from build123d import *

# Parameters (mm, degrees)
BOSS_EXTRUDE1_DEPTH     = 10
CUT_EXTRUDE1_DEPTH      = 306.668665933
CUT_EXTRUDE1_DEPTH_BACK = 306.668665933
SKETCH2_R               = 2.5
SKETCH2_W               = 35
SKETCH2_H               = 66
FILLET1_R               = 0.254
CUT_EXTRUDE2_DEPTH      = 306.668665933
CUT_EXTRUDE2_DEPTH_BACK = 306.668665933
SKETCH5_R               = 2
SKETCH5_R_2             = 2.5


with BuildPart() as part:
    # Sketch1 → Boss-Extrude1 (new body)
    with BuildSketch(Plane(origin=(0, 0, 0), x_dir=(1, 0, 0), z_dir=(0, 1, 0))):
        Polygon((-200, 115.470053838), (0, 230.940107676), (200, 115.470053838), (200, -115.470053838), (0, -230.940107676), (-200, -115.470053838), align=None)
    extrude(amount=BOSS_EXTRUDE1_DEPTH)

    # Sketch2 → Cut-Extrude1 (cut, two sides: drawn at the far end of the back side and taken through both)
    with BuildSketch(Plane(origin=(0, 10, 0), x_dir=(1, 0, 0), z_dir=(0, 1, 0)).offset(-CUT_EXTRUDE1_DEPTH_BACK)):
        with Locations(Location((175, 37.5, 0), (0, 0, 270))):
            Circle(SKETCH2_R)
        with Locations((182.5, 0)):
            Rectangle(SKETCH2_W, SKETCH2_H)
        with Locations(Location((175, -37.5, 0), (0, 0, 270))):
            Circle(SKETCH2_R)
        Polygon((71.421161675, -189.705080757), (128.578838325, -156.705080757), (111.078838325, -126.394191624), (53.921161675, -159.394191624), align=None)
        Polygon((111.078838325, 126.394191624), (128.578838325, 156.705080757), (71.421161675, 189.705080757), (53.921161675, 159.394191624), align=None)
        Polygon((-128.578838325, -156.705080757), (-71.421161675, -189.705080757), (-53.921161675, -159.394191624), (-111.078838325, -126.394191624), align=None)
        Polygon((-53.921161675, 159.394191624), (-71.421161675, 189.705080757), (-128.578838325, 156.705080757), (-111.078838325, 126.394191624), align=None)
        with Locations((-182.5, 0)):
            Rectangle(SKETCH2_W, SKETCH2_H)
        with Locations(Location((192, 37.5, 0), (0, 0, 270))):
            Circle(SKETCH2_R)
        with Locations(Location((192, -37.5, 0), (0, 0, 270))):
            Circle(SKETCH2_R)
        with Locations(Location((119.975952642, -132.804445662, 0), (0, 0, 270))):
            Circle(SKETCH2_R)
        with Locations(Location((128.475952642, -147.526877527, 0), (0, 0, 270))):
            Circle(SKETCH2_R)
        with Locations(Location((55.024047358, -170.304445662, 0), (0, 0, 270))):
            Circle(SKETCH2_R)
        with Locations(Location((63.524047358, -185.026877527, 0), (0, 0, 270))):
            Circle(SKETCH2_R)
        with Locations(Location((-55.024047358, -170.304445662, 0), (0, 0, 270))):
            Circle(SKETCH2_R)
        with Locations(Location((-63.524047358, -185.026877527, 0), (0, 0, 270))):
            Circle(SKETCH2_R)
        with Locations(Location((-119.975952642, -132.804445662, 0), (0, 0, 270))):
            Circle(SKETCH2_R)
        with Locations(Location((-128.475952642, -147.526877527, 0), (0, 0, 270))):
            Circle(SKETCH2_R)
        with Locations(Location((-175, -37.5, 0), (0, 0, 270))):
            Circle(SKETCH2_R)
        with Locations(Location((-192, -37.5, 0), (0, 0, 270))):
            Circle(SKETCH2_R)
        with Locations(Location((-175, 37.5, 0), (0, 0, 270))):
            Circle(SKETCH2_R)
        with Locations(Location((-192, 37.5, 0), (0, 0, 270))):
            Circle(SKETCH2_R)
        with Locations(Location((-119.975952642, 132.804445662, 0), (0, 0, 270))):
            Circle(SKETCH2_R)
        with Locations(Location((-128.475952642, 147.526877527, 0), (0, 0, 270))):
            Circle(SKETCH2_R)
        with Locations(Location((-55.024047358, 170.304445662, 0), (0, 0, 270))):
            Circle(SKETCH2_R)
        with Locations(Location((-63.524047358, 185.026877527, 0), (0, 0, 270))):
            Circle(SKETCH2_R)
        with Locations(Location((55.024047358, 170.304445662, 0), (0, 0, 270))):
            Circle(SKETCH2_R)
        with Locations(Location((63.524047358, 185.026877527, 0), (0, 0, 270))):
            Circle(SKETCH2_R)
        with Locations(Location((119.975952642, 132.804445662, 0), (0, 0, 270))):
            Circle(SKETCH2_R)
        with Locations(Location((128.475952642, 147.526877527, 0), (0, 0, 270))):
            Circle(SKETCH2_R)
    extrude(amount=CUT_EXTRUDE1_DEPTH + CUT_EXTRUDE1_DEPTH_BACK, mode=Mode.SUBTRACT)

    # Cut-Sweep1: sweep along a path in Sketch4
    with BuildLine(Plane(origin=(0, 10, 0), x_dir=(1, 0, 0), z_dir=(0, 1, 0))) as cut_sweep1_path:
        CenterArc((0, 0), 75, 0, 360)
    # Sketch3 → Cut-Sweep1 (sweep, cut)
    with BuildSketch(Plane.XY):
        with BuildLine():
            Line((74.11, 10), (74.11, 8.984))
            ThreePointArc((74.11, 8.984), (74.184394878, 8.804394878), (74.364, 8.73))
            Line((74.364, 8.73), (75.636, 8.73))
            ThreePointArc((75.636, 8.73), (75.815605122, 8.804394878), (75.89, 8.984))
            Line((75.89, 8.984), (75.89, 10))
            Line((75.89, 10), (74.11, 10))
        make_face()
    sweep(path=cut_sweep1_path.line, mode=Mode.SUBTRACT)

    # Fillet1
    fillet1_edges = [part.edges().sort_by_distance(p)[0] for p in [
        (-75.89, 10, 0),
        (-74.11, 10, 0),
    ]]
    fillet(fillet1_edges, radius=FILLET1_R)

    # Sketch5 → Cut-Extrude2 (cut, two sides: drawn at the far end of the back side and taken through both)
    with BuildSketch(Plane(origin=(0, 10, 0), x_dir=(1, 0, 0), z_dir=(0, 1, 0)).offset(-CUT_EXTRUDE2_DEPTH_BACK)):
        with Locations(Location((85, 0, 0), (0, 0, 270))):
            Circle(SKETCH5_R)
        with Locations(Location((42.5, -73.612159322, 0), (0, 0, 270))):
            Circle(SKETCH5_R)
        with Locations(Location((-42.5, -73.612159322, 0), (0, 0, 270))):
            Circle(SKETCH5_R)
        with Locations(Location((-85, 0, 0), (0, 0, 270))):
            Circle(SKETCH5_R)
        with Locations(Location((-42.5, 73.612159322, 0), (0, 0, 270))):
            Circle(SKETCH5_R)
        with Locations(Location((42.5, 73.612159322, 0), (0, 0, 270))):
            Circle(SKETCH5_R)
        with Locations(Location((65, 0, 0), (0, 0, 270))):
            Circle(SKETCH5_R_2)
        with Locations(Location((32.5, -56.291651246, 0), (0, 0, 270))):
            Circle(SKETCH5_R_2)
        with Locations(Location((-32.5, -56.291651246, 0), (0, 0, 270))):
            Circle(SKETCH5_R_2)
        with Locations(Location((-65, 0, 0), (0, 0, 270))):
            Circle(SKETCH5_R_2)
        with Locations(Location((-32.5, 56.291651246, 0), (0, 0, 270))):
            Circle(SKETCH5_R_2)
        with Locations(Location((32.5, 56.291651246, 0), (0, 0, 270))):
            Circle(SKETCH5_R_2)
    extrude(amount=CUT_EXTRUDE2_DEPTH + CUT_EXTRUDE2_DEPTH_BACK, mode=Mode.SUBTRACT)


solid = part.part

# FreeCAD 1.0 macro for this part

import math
import FreeCAD as App
import Part
import Sketcher
from FreeCAD import Vector
Q = App.Units.Quantity


def edges_at(feature, points):
    """Names of the edges that pass closest to the given points."""
    edges = feature.Shape.Edges
    near = lambda p: min(range(len(edges)), key=lambda i: edges[i].distToShape(Part.Vertex(*p))[0])
    return sorted({f"Edge{near(p) + 1}" for p in points})


def add_polygon(sketch, points):
    """Adds a closed chain of lines whose ends are joined by coincident constraints."""
    first, n = sketch.GeometryCount, len(points)
    for a, b in zip(points, points[1:] + points[:1]):
        sketch.addGeometry(Part.LineSegment(App.Vector(*a, 0), App.Vector(*b, 0)), False)
    for i in range(n):
        sketch.addConstraint(Sketcher.Constraint("Coincident", first + i, 2, first + (i + 1) % n, 1))

doc = App.newDocument("Part")
params = doc.addObject("Spreadsheet::Sheet", "Params")
for row, (alias, value) in enumerate([
    ("pad1_length", "10 mm"),
    ("sketch2_diameter", "5 mm"),
    ("sketch2_width", "35 mm"),
    ("sketch2_height", "66 mm"),
    ("sketch2_length", "66 mm"),
    ("sketch2_length2", "35 mm"),
    ("sketch3_width", "1.78 mm"),
    ("sketch4_diameter", "150 mm"),
    ("fillet_radius", "0.254 mm"),
    ("sketch5_diameter", "4 mm"),
    ("sketch5_diameter2", "5 mm"),
], start=1):
    params.set(f"A{row}", alias)
    params.set(f"B{row}", "=" + value)
    params.setAlias(f"B{row}", alias)

body = doc.addObject("PartDesign::Body", "Body")

sketch1 = body.newObject("Sketcher::SketchObject", "Sketch")
sketch1.AttachmentSupport = (doc.getObject("XZ_Plane"), [""])
sketch1.MapMode = "FlatFace"
add_polygon(sketch1, [(0, -231), (-200, -115), (-200, 115), (0, 231), (200, 115), (200, -115)])
sketch1.addConstraint([
    Sketcher.Constraint("Vertical", 1),
    Sketcher.Constraint("Vertical", 4),
    Sketcher.Constraint("Symmetric", 0, 2, 3, 2, -1, 1),
    Sketcher.Constraint("Symmetric", 2, 2, 5, 2, -1, 1),
    Sketcher.Constraint("PointOnObject", 2, 2, -2),
    Sketcher.Constraint("Parallel", 2, 5),
    Sketcher.Constraint("Horizontal", 1, 2, 3, 2),
    Sketcher.Constraint("Angle", 0, Q("150 deg")),
    Sketcher.Constraint("DistanceX", 0, 2, -1, 1, Q("200 mm")),
    Sketcher.Constraint("DistanceY", 1, 1, 1, 2, Q("230.940108 mm")),
])
pad1 = body.newObject("PartDesign::Pad", "Pad")
pad1.Profile = sketch1
pad1.setExpression("Length", "Params.pad1_length")
pad1.Reversed = True

sketch2 = body.newObject("Sketcher::SketchObject", "Sketch001")
sketch2.AttachmentSupport = (doc.getObject("XZ_Plane"), [""])
sketch2.MapMode = "FlatFace"
sketch2.AttachmentOffset = App.Placement(Vector(0, 0, -10), App.Rotation())
sketch2.addGeometry(Part.Circle(Vector(175, -37.5, 0), Vector(0, 0, 1), 2.5), False)
add_polygon(sketch2, [(165, -33), (165, 33), (200, 33), (200, -33)])
sketch2.addGeometry(Part.Circle(Vector(175, 37.5, 0), Vector(0, 0, 1), 2.5), False)
add_polygon(sketch2, [(71.4, 189.7), (128.6, 156.7), (111.1, 126.4), (53.9, 159.4)])
add_polygon(sketch2, [(111.1, -126.4), (128.6, -156.7), (71.4, -189.7), (53.9, -159.4)])
add_polygon(sketch2, [(-128.6, 156.7), (-71.4, 189.7), (-53.9, 159.4), (-111.1, 126.4)])
add_polygon(sketch2, [(-53.9, -159.4), (-71.4, -189.7), (-128.6, -156.7), (-111.1, -126.4)])
add_polygon(sketch2, [(-200, -33), (-200, 33), (-165, 33), (-165, -33)])
sketch2.addGeometry(Part.Circle(Vector(192, -37.5, 0), Vector(0, 0, 1), 2.5), False)
sketch2.addGeometry(Part.Circle(Vector(192, 37.5, 0), Vector(0, 0, 1), 2.5), False)
sketch2.addGeometry(Part.Circle(Vector(120, 132.8, 0), Vector(0, 0, 1), 2.5), False)
sketch2.addGeometry(Part.Circle(Vector(128.5, 147.5, 0), Vector(0, 0, 1), 2.5), False)
sketch2.addGeometry(Part.Circle(Vector(55, 170.3, 0), Vector(0, 0, 1), 2.5), False)
sketch2.addGeometry(Part.Circle(Vector(63.5, 185, 0), Vector(0, 0, 1), 2.5), False)
sketch2.addGeometry(Part.Circle(Vector(-55, 170.3, 0), Vector(0, 0, 1), 2.5), False)
sketch2.addGeometry(Part.Circle(Vector(-63.5, 185, 0), Vector(0, 0, 1), 2.5), False)
sketch2.addGeometry(Part.Circle(Vector(-120, 132.8, 0), Vector(0, 0, 1), 2.5), False)
sketch2.addGeometry(Part.Circle(Vector(-128.5, 147.5, 0), Vector(0, 0, 1), 2.5), False)
sketch2.addGeometry(Part.Circle(Vector(-175, 37.5, 0), Vector(0, 0, 1), 2.5), False)
sketch2.addGeometry(Part.Circle(Vector(-192, 37.5, 0), Vector(0, 0, 1), 2.5), False)
sketch2.addGeometry(Part.Circle(Vector(-175, -37.5, 0), Vector(0, 0, 1), 2.5), False)
sketch2.addGeometry(Part.Circle(Vector(-192, -37.5, 0), Vector(0, 0, 1), 2.5), False)
sketch2.addGeometry(Part.Circle(Vector(-120, -132.8, 0), Vector(0, 0, 1), 2.5), False)
sketch2.addGeometry(Part.Circle(Vector(-128.5, -147.5, 0), Vector(0, 0, 1), 2.5), False)
sketch2.addGeometry(Part.Circle(Vector(-55, -170.3, 0), Vector(0, 0, 1), 2.5), False)
sketch2.addGeometry(Part.Circle(Vector(-63.5, -185, 0), Vector(0, 0, 1), 2.5), False)
sketch2.addGeometry(Part.Circle(Vector(55, -170.3, 0), Vector(0, 0, 1), 2.5), False)
sketch2.addGeometry(Part.Circle(Vector(63.5, -185, 0), Vector(0, 0, 1), 2.5), False)
sketch2.addGeometry(Part.Circle(Vector(120, -132.8, 0), Vector(0, 0, 1), 2.5), False)
sketch2.addGeometry(Part.Circle(Vector(128.5, -147.5, 0), Vector(0, 0, 1), 2.5), False)
sketch2.addConstraint([
    Sketcher.Constraint("Vertical", 1),
    Sketcher.Constraint("Horizontal", 2),
    Sketcher.Constraint("Vertical", 3),
    Sketcher.Constraint("Horizontal", 4),
    Sketcher.Constraint("Vertical", 22),
    Sketcher.Constraint("Horizontal", 23),
    Sketcher.Constraint("Vertical", 24),
    Sketcher.Constraint("Horizontal", 25),
    Sketcher.Constraint("Equal", 0, 5),
    Sketcher.Constraint("Equal", 5, 26),
    Sketcher.Constraint("Equal", 26, 27),
    Sketcher.Constraint("Equal", 27, 28),
    Sketcher.Constraint("Equal", 28, 29),
    Sketcher.Constraint("Equal", 29, 30),
    Sketcher.Constraint("Equal", 30, 31),
    Sketcher.Constraint("Equal", 31, 32),
    Sketcher.Constraint("Equal", 32, 33),
    Sketcher.Constraint("Equal", 33, 34),
    Sketcher.Constraint("Equal", 34, 35),
    Sketcher.Constraint("Equal", 35, 36),
    Sketcher.Constraint("Equal", 36, 37),
    Sketcher.Constraint("Equal", 37, 38),
    Sketcher.Constraint("Equal", 38, 39),
    Sketcher.Constraint("Equal", 39, 40),
    Sketcher.Constraint("Equal", 40, 41),
    Sketcher.Constraint("Equal", 41, 42),
    Sketcher.Constraint("Equal", 42, 43),
    Sketcher.Constraint("Equal", 43, 44),
    Sketcher.Constraint("Equal", 44, 45),
    Sketcher.Constraint("Equal", 45, 46),
    Sketcher.Constraint("Equal", 46, 47),
    Sketcher.Constraint("Symmetric", 0, 3, 36, 3, -1, 1),
    Sketcher.Constraint("Symmetric", 26, 3, 37, 3, -1, 1),
    Sketcher.Constraint("Symmetric", 5, 3, 38, 3, -1, 1),
    Sketcher.Constraint("Symmetric", 27, 3, 39, 3, -1, 1),
    Sketcher.Constraint("Symmetric", 28, 3, 40, 3, -1, 1),
    Sketcher.Constraint("Symmetric", 29, 3, 41, 3, -1, 1),
    Sketcher.Constraint("Symmetric", 30, 3, 42, 3, -1, 1),
    Sketcher.Constraint("Symmetric", 31, 3, 43, 3, -1, 1),
    Sketcher.Constraint("Symmetric", 32, 3, 44, 3, -1, 1),
    Sketcher.Constraint("Symmetric", 33, 3, 45, 3, -1, 1),
    Sketcher.Constraint("Symmetric", 34, 3, 46, 3, -1, 1),
    Sketcher.Constraint("Symmetric", 35, 3, 47, 3, -1, 1),
    Sketcher.Constraint("Symmetric", 11, 2, 14, 2, -1, 1),
    Sketcher.Constraint("Symmetric", 12, 2, 15, 2, -1, 1),
    Sketcher.Constraint("Symmetric", 13, 2, 16, 2, -1, 1),
    Sketcher.Constraint("Symmetric", 10, 2, 17, 2, -1, 1),
    Sketcher.Constraint("Symmetric", 9, 2, 18, 2, -1, 1),
    Sketcher.Constraint("Symmetric", 6, 2, 19, 2, -1, 1),
    Sketcher.Constraint("Symmetric", 7, 2, 20, 2, -1, 1),
    Sketcher.Constraint("Symmetric", 8, 2, 21, 2, -1, 1),
    Sketcher.Constraint("Symmetric", 3, 2, 22, 2, -1, 1),
    Sketcher.Constraint("Symmetric", 1, 2, 24, 2, -1, 1),
    Sketcher.Constraint("Symmetric", 30, 3, 32, 3, -2),
    Sketcher.Constraint("Symmetric", 31, 3, 33, 3, -2),
    Sketcher.Constraint("Symmetric", 28, 3, 34, 3, -2),
    Sketcher.Constraint("Symmetric", 29, 3, 35, 3, -2),
    Sketcher.Constraint("Symmetric", 5, 3, 36, 3, -2),
    Sketcher.Constraint("Symmetric", 27, 3, 37, 3, -2),
    Sketcher.Constraint("Symmetric", 9, 2, 14, 2, -2),
    Sketcher.Constraint("Symmetric", 8, 2, 15, 2, -2),
    Sketcher.Constraint("Symmetric", 7, 2, 16, 2, -2),
    Sketcher.Constraint("Symmetric", 6, 2, 17, 2, -2),
    Sketcher.Constraint("Perpendicular", 6, 7),
    Sketcher.Constraint("Perpendicular", 7, 8),
    Sketcher.Constraint("Perpendicular", 8, 9),
    Sketcher.Constraint("Horizontal", 0, 3, 26, 3),
    Sketcher.Constraint("Horizontal", 2, 2, 22, 2),
    Sketcher.Constraint("Diameter", 0, Q("5 mm")),
    Sketcher.Constraint("DistanceX", 2, 1, 2, 2, Q("35 mm")),
    Sketcher.Constraint("DistanceY", 1, 1, 1, 2, Q("66 mm")),
    Sketcher.Constraint("Angle", 6, Q("-30 deg")),
    Sketcher.Constraint("Distance", 6, Q("66 mm")),
    Sketcher.Constraint("Distance", 7, Q("35 mm")),
    Sketcher.Constraint("DistanceX", -1, 1, 0, 3, Q("175 mm")),
    Sketcher.Constraint("DistanceX", -1, 1, 26, 3, Q("192 mm")),
    Sketcher.Constraint("DistanceX", -1, 1, 1, 2, Q("165 mm")),
    Sketcher.Constraint("DistanceY", 0, 3, 5, 3, Q("75 mm")),
    Sketcher.Constraint("DistanceX", 32, 3, 28, 3, Q("175 mm")),
    Sketcher.Constraint("DistanceX", 33, 3, 29, 3, Q("192 mm")),
    Sketcher.Constraint("DistanceX", 28, 3, 29, 3, Q("8.5 mm")),
    Sketcher.Constraint("DistanceY", 28, 3, 30, 3, Q("37.5 mm")),
    Sketcher.Constraint("DistanceY", 29, 3, 31, 3, Q("37.5 mm")),
    Sketcher.Constraint("DistanceX", -1, 1, 6, 2, Q("128.578838 mm")),
    Sketcher.Constraint("DistanceY", -1, 1, 6, 2, Q("156.705081 mm")),
    Sketcher.Constraint("DistanceY", 28, 3, 29, 3, Q("14.722432 mm")),
    Sketcher.Constraint("DistanceY", 40, 3, 34, 3, Q("265.608891 mm")),
    Sketcher.Constraint("DistanceX", 31, 3, 6, 2, Q("65.054791 mm")),
])
sketch2.setExpression("Constraints[92]", "Params.sketch2_diameter")
sketch2.setExpression("Constraints[93]", "Params.sketch2_width")
sketch2.setExpression("Constraints[94]", "Params.sketch2_height")
sketch2.setExpression("Constraints[96]", "Params.sketch2_length")
sketch2.setExpression("Constraints[97]", "Params.sketch2_length2")
pocket1 = body.newObject("PartDesign::Pocket", "Pocket")
pocket1.Profile = sketch2
pocket1.Type = "ThroughAll"
pocket1.Midplane = True

sketch3 = body.newObject("Sketcher::SketchObject", "Sketch002")
sketch3.AttachmentSupport = (doc.getObject("XY_Plane"), [""])
sketch3.MapMode = "FlatFace"
sketch3.addGeometry([
    Part.LineSegment(Vector(74.11, 10, 0), Vector(74.11, 8.98, 0)),
    Part.ArcOfCircle(Part.Circle(Vector(74.36, 8.98, 0), Vector(0, 0, 1), 0.25), math.radians(-180), math.radians(-90)),
    Part.LineSegment(Vector(74.36, 8.73, 0), Vector(75.64, 8.73, 0)),
    Part.ArcOfCircle(Part.Circle(Vector(75.64, 8.98, 0), Vector(0, 0, 1), 0.25), math.radians(-90), math.radians(0)),
    Part.LineSegment(Vector(75.89, 8.98, 0), Vector(75.89, 10, 0)),
    Part.LineSegment(Vector(75.89, 10, 0), Vector(74.11, 10, 0)),
], False)
sketch3.addConstraint([
    Sketcher.Constraint("Tangent", 0, 2, 1, 1),
    Sketcher.Constraint("Tangent", 1, 2, 2, 1),
    Sketcher.Constraint("Tangent", 2, 2, 3, 1),
    Sketcher.Constraint("Tangent", 3, 2, 4, 1),
    Sketcher.Constraint("Coincident", 4, 2, 5, 1),
    Sketcher.Constraint("Coincident", 5, 2, 0, 1),
    Sketcher.Constraint("Vertical", 0),
    Sketcher.Constraint("Horizontal", 2),
    Sketcher.Constraint("Vertical", 4),
    Sketcher.Constraint("Horizontal", 5),
    Sketcher.Constraint("Equal", 1, 3),
    Sketcher.Constraint("DistanceY", -1, 1, 4, 2, Q("10 mm")),
    Sketcher.Constraint("Radius", 1, Q("0.254 mm")),
    Sketcher.Constraint("DistanceX", 5, 2, 5, 1, Q("1.78 mm")),
    Sketcher.Constraint("DistanceY", 0, 2, 0, 1, Q("1.016 mm")),
    Sketcher.Constraint("DistanceX", -1, 1, 0, 2, Q("74.11 mm")),
])
sketch3.setExpression("Constraints[13]", "Params.sketch3_width")

sketch4 = body.newObject("Sketcher::SketchObject", "Sketch003")
sketch4.AttachmentSupport = (doc.getObject("XZ_Plane"), [""])
sketch4.MapMode = "FlatFace"
sketch4.AttachmentOffset = App.Placement(Vector(0, 0, -10), App.Rotation())
sketch4.addGeometry(Part.Circle(Vector(0, 0, 0), Vector(0, 0, 1), 75), False)
sketch4.addConstraint([
    Sketcher.Constraint("Coincident", 0, 3, -1, 1),
    Sketcher.Constraint("Diameter", 0, Q("150 mm")),
])
sketch4.setExpression("Constraints[1]", "Params.sketch4_diameter")
doc.recompute()

subtractivepipe = body.newObject("PartDesign::SubtractivePipe", "SubtractivePipe")
subtractivepipe.Profile = sketch3
subtractivepipe.Spine = (sketch4, ["Edge1"])
doc.recompute()

fillet = body.newObject("PartDesign::Fillet", "Fillet")
fillet.Base = (subtractivepipe, edges_at(subtractivepipe, [(-75.89, 10, 0), (-74.11, 10, 0)]))
fillet.setExpression("Radius", "Params.fillet_radius")

sketch5 = body.newObject("Sketcher::SketchObject", "Sketch004")
sketch5.AttachmentSupport = (doc.getObject("XZ_Plane"), [""])
sketch5.MapMode = "FlatFace"
sketch5.AttachmentOffset = App.Placement(Vector(0, 0, -10), App.Rotation())
sketch5.addGeometry([
    Part.Circle(Vector(85, 0, 0), Vector(0, 0, 1), 2),
    Part.Circle(Vector(42.5, 73.6, 0), Vector(0, 0, 1), 2),
    Part.Circle(Vector(-42.5, 73.6, 0), Vector(0, 0, 1), 2),
    Part.Circle(Vector(-85, 0, 0), Vector(0, 0, 1), 2),
    Part.Circle(Vector(-42.5, -73.6, 0), Vector(0, 0, 1), 2),
    Part.Circle(Vector(42.5, -73.6, 0), Vector(0, 0, 1), 2),
    Part.Circle(Vector(65, 0, 0), Vector(0, 0, 1), 2.5),
    Part.Circle(Vector(32.5, 56.3, 0), Vector(0, 0, 1), 2.5),
    Part.Circle(Vector(-32.5, 56.3, 0), Vector(0, 0, 1), 2.5),
    Part.Circle(Vector(-65, 0, 0), Vector(0, 0, 1), 2.5),
    Part.Circle(Vector(-32.5, -56.3, 0), Vector(0, 0, 1), 2.5),
    Part.Circle(Vector(32.5, -56.3, 0), Vector(0, 0, 1), 2.5),
], False)
sketch5.addConstraint([
    Sketcher.Constraint("Equal", 0, 1),
    Sketcher.Constraint("Equal", 1, 2),
    Sketcher.Constraint("Equal", 2, 3),
    Sketcher.Constraint("Equal", 3, 4),
    Sketcher.Constraint("Equal", 4, 5),
    Sketcher.Constraint("Equal", 6, 7),
    Sketcher.Constraint("Equal", 7, 8),
    Sketcher.Constraint("Equal", 8, 9),
    Sketcher.Constraint("Equal", 9, 10),
    Sketcher.Constraint("Equal", 10, 11),
    Sketcher.Constraint("Symmetric", 0, 3, 3, 3, -1, 1),
    Sketcher.Constraint("Symmetric", 1, 3, 4, 3, -1, 1),
    Sketcher.Constraint("Symmetric", 2, 3, 5, 3, -1, 1),
    Sketcher.Constraint("Symmetric", 6, 3, 9, 3, -1, 1),
    Sketcher.Constraint("Symmetric", 7, 3, 10, 3, -1, 1),
    Sketcher.Constraint("Symmetric", 8, 3, 11, 3, -1, 1),
    Sketcher.Constraint("Symmetric", 1, 3, 2, 3, -2),
    Sketcher.Constraint("Symmetric", 7, 3, 8, 3, -2),
    Sketcher.Constraint("PointOnObject", 0, 3, -1),
    Sketcher.Constraint("PointOnObject", 6, 3, -1),
    Sketcher.Constraint("Diameter", 0, Q("4 mm")),
    Sketcher.Constraint("Diameter", 6, Q("5 mm")),
    Sketcher.Constraint("DistanceX", -1, 1, 0, 3, Q("85 mm")),
    Sketcher.Constraint("DistanceX", -1, 1, 6, 3, Q("65 mm")),
    Sketcher.Constraint("DistanceX", 2, 3, 1, 3, Q("85 mm")),
    Sketcher.Constraint("DistanceX", 7, 3, 1, 3, Q("10 mm")),
    Sketcher.Constraint("DistanceY", -1, 1, 1, 3, Q("73.612159 mm")),
    Sketcher.Constraint("DistanceY", -1, 1, 7, 3, Q("56.291651 mm")),
])
sketch5.setExpression("Constraints[20]", "Params.sketch5_diameter")
sketch5.setExpression("Constraints[21]", "Params.sketch5_diameter2")
pocket2 = body.newObject("PartDesign::Pocket", "Pocket001")
pocket2.Profile = sketch5
pocket2.Type = "ThroughAll"
pocket2.Midplane = True

doc.recompute()
